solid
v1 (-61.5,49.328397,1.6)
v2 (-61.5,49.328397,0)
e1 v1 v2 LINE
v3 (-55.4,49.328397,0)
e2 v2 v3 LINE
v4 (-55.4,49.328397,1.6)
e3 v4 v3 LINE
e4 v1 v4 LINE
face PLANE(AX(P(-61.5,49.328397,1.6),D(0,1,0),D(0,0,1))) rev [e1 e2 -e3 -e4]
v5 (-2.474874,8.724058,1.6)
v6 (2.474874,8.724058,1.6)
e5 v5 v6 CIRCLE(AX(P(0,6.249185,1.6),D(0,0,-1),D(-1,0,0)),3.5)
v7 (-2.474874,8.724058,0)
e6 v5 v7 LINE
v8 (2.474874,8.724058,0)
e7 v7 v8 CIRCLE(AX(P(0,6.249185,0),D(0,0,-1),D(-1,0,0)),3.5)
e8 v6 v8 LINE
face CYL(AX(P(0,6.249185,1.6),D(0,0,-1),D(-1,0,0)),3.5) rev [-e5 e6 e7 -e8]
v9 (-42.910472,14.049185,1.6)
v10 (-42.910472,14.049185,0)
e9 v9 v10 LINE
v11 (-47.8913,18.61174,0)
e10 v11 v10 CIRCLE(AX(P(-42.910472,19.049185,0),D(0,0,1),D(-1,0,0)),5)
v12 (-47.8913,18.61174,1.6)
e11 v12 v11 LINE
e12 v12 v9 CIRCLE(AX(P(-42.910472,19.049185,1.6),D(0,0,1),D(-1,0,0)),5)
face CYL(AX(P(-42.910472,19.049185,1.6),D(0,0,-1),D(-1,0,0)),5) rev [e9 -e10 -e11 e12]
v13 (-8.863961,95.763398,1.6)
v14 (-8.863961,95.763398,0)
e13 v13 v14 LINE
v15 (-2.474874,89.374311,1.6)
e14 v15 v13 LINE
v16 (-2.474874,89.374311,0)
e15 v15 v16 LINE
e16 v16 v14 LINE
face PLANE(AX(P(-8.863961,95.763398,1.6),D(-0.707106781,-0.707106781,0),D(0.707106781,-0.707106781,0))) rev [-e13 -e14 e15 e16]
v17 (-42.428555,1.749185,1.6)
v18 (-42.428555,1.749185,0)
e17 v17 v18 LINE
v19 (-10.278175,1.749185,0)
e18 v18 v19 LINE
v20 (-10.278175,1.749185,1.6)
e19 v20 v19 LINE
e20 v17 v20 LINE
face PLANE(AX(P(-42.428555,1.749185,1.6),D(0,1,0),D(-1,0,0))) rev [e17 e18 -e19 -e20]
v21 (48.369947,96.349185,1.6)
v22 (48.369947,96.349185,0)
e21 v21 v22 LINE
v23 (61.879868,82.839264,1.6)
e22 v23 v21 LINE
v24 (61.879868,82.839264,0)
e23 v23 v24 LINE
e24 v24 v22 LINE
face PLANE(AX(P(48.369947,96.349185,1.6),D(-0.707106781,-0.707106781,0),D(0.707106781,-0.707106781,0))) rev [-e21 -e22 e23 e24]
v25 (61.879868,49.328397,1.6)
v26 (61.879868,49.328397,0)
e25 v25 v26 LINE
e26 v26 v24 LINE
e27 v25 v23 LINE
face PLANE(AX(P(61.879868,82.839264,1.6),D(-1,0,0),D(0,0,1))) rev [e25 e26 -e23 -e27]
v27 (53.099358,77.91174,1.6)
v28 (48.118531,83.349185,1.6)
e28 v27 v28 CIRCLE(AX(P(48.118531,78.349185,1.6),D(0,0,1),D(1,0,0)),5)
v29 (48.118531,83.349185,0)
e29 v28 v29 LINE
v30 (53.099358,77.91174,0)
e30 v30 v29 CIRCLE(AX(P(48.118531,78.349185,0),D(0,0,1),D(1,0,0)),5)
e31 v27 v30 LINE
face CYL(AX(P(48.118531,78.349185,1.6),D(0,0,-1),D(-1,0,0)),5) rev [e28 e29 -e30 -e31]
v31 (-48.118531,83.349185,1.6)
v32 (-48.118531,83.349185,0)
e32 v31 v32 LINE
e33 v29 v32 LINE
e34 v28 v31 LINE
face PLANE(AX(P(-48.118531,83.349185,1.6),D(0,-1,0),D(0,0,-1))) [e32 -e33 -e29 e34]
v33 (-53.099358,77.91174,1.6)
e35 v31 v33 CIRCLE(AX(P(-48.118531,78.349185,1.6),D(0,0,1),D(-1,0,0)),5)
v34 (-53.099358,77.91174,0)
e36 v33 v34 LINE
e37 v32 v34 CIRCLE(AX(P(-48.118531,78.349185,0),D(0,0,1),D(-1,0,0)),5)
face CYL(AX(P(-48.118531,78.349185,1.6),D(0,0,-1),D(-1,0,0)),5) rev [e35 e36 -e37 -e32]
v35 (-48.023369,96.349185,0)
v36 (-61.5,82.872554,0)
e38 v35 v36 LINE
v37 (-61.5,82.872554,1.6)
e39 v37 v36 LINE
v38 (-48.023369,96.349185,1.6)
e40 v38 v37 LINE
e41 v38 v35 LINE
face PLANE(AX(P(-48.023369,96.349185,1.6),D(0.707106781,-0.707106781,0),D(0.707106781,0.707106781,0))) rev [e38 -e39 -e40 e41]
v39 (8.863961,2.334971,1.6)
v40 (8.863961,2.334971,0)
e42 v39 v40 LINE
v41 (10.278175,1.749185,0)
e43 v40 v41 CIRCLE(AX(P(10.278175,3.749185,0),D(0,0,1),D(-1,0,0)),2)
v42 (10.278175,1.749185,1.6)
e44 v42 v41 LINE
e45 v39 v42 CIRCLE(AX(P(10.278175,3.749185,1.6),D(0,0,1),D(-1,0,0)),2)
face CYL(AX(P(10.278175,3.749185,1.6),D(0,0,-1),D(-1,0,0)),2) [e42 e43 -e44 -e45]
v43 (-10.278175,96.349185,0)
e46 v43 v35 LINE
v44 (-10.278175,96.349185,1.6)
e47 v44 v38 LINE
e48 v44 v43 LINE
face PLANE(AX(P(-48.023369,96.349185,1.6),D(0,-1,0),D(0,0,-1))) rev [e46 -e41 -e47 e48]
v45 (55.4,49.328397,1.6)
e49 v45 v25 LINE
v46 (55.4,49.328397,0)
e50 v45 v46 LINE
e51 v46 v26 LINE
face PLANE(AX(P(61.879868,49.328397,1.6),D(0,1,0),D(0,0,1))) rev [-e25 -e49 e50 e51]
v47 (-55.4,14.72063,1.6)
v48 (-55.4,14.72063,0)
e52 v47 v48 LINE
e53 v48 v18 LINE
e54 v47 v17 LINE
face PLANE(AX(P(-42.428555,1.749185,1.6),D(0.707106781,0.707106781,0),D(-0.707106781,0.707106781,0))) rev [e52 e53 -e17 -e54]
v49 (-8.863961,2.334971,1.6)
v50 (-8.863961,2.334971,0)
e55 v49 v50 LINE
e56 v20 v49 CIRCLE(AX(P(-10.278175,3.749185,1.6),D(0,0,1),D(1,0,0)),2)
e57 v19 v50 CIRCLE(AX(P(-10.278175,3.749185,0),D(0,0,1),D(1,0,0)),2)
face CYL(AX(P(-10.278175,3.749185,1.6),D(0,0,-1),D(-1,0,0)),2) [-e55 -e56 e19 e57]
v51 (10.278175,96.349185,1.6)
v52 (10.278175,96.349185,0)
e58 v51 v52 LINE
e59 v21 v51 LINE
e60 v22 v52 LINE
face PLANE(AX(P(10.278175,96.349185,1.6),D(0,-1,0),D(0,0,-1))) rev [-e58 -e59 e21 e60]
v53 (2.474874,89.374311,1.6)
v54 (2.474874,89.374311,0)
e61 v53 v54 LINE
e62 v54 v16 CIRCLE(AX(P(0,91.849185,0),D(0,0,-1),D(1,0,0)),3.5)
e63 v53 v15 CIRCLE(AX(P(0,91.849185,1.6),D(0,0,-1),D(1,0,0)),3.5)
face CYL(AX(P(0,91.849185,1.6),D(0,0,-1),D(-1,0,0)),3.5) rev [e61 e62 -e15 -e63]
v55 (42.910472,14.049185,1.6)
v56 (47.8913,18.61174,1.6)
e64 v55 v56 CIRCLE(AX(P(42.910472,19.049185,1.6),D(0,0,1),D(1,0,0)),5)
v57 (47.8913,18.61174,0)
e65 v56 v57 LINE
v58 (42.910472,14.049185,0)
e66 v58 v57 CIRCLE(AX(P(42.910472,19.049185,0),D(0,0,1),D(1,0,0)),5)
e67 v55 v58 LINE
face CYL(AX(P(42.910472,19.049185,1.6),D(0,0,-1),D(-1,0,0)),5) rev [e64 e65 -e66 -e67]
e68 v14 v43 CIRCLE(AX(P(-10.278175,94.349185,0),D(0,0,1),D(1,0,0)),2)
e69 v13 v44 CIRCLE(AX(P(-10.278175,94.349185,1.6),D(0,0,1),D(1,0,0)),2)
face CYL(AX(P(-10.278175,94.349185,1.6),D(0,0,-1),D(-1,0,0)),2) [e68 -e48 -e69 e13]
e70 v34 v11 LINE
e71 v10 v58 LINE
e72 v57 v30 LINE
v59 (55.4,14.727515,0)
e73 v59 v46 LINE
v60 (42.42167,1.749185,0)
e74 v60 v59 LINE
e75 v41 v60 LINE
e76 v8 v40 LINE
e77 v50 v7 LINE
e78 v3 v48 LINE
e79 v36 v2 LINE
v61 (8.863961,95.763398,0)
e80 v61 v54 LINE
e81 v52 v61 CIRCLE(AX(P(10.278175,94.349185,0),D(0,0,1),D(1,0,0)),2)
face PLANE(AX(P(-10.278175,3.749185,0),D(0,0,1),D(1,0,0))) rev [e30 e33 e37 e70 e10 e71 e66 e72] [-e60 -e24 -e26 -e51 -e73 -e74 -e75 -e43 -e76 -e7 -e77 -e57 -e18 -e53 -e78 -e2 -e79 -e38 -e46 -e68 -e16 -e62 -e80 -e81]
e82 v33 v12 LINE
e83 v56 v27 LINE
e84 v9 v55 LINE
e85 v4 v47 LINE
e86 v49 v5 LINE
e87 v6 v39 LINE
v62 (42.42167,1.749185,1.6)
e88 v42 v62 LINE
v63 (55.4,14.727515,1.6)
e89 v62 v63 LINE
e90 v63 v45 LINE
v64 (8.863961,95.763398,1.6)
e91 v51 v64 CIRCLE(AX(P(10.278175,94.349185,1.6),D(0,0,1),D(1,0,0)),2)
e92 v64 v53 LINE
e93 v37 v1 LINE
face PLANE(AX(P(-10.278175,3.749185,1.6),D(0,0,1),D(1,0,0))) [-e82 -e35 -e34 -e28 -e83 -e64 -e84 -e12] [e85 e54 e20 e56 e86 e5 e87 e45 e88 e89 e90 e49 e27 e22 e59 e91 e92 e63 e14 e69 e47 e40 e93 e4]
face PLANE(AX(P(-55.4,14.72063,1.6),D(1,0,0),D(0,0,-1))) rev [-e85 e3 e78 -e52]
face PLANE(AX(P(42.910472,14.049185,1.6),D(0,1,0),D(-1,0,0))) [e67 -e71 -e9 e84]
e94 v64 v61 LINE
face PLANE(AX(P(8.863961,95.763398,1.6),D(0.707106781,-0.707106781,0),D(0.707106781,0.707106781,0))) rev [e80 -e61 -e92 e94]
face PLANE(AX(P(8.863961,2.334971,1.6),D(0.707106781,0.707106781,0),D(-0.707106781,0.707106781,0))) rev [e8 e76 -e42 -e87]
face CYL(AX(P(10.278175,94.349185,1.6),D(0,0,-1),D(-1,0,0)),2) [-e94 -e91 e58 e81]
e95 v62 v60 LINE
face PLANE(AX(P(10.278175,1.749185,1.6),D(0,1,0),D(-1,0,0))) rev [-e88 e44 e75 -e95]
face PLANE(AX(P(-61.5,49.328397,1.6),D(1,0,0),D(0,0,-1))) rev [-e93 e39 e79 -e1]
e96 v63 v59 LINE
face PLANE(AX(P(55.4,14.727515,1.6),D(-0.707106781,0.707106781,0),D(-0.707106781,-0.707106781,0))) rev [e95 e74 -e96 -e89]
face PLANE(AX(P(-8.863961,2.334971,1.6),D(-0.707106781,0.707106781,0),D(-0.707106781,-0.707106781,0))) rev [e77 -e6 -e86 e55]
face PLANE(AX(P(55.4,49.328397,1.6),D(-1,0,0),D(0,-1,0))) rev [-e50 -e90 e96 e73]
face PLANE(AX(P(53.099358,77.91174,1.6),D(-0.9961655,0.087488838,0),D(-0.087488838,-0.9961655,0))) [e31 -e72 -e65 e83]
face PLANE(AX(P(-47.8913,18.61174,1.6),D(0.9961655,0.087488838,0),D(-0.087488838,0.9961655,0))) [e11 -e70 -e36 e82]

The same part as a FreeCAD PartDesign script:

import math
import FreeCAD as App
import Part
import Sketcher
from FreeCAD import Vector
Q = App.Units.Quantity

doc = App.newDocument("Part")
params = doc.addObject("Spreadsheet::Sheet", "Params")
for row, (alias, value) in enumerate([
    ("sketch1_radius", "2 mm"),
    ("sketch1_radius2", "5 mm"),
    ("sketch1_radius3", "3.5 mm"),
    ("sketch1_width", "6.1 mm"),
    ("pad1_length", "1.6 mm"),
], start=1):
    params.set(f"A{row}", alias)
    params.set(f"B{row}", "=" + value)
    params.setAlias(f"B{row}", alias)

body = doc.addObject("PartDesign::Body", "Body")

sketch1 = body.newObject("Sketcher::SketchObject", "Sketch")
sketch1.AttachmentSupport = (doc.getObject("XY_Plane"), [""])
sketch1.MapMode = "FlatFace"
sketch1.addGeometry([
    Part.LineSegment(Vector(-10.3, 96.3, 0), Vector(-48, 96.3, 0)),
    Part.LineSegment(Vector(-48, 96.3, 0), Vector(-61.5, 82.9, 0)),
    Part.LineSegment(Vector(-61.5, 82.9, 0), Vector(-61.5, 49.3, 0)),
    Part.LineSegment(Vector(-61.5, 49.3, 0), Vector(-55.4, 49.3, 0)),
    Part.LineSegment(Vector(-55.4, 49.3, 0), Vector(-55.4, 14.7, 0)),
    Part.LineSegment(Vector(-55.4, 14.7, 0), Vector(-42.4, 1.7, 0)),
    Part.LineSegment(Vector(-42.4, 1.7, 0), Vector(-10.3, 1.7, 0)),
    Part.ArcOfCircle(Part.Circle(Vector(-10.3, 3.7, 0), Vector(0, 0, 1), 2), math.radians(-90), math.radians(-45)),
    Part.LineSegment(Vector(-8.9, 2.3, 0), Vector(-2.5, 8.7, 0)),
    Part.ArcOfCircle(Part.Circle(Vector(0, 6.2, 0), Vector(0, 0, 1), 3.5), math.radians(45), math.radians(135)),
    Part.LineSegment(Vector(2.5, 8.7, 0), Vector(8.9, 2.3, 0)),
    Part.ArcOfCircle(Part.Circle(Vector(10.3, 3.7, 0), Vector(0, 0, 1), 2), math.radians(-135), math.radians(-90)),
    Part.LineSegment(Vector(10.3, 1.7, 0), Vector(42.4, 1.7, 0)),
    Part.LineSegment(Vector(42.4, 1.7, 0), Vector(55.4, 14.7, 0)),
    Part.LineSegment(Vector(55.4, 14.7, 0), Vector(55.4, 49.3, 0)),
    Part.LineSegment(Vector(55.4, 49.3, 0), Vector(61.9, 49.3, 0)),
    Part.LineSegment(Vector(61.9, 49.3, 0), Vector(61.9, 82.8, 0)),
    Part.LineSegment(Vector(61.9, 82.8, 0), Vector(48.4, 96.3, 0)),
    Part.LineSegment(Vector(48.4, 96.3, 0), Vector(10.3, 96.3, 0)),
    Part.ArcOfCircle(Part.Circle(Vector(10.3, 94.3, 0), Vector(0, 0, 1), 2), math.radians(90), math.radians(135)),
    Part.LineSegment(Vector(8.9, 95.8, 0), Vector(2.5, 89.4, 0)),
    Part.ArcOfCircle(Part.Circle(Vector(0, 91.8, 0), Vector(0, 0, 1), 3.5), math.radians(-135), math.radians(-45)),
    Part.LineSegment(Vector(-2.5, 89.4, 0), Vector(-8.9, 95.8, 0)),
    Part.ArcOfCircle(Part.Circle(Vector(-10.3, 94.3, 0), Vector(0, 0, 1), 2), math.radians(45), math.radians(90)),
    Part.LineSegment(Vector(-48.1, 83.3, 0), Vector(48.1, 83.3, 0)),
    Part.ArcOfCircle(Part.Circle(Vector(48.1, 78.3, 0), Vector(0, 0, 1), 5), math.radians(-5), math.radians(90)),
    Part.LineSegment(Vector(53.1, 77.9, 0), Vector(47.9, 18.6, 0)),
    Part.ArcOfCircle(Part.Circle(Vector(42.9, 19, 0), Vector(0, 0, 1), 5), math.radians(-90), math.radians(-5)),
    Part.LineSegment(Vector(42.9, 14, 0), Vector(-42.9, 14, 0)),
    Part.ArcOfCircle(Part.Circle(Vector(-42.9, 19, 0), Vector(0, 0, 1), 5), math.radians(-175), math.radians(-90)),
    Part.LineSegment(Vector(-47.9, 18.6, 0), Vector(-53.1, 77.9, 0)),
    Part.ArcOfCircle(Part.Circle(Vector(-48.1, 78.3, 0), Vector(0, 0, 1), 5), math.radians(90), math.radians(185)),
], False)
sketch1.addConstraint([
    Sketcher.Constraint("Coincident", 0, 2, 1, 1),
    Sketcher.Constraint("Coincident", 1, 2, 2, 1),
    Sketcher.Constraint("Coincident", 2, 2, 3, 1),
    Sketcher.Constraint("Coincident", 3, 2, 4, 1),
    Sketcher.Constraint("Coincident", 4, 2, 5, 1),
    Sketcher.Constraint("Coincident", 5, 2, 6, 1),
    Sketcher.Constraint("Tangent", 6, 2, 7, 1),
    Sketcher.Constraint("Tangent", 7, 2, 8, 1),
    Sketcher.Constraint("Tangent", 8, 2, 9, 2),
    Sketcher.Constraint("Tangent", 9, 1, 10, 1),
    Sketcher.Constraint("Tangent", 10, 2, 11, 1),
    Sketcher.Constraint("Tangent", 11, 2, 12, 1),
    Sketcher.Constraint("Coincident", 12, 2, 13, 1),
    Sketcher.Constraint("Coincident", 13, 2, 14, 1),
    Sketcher.Constraint("Coincident", 14, 2, 15, 1),
    Sketcher.Constraint("Coincident", 15, 2, 16, 1),
    Sketcher.Constraint("Coincident", 16, 2, 17, 1),
    Sketcher.Constraint("Coincident", 17, 2, 18, 1),
    Sketcher.Constraint("Tangent", 18, 2, 19, 1),
    Sketcher.Constraint("Tangent", 19, 2, 20, 1),
    Sketcher.Constraint("Tangent", 20, 2, 21, 2),
    Sketcher.Constraint("Tangent", 21, 1, 22, 1),
    Sketcher.Constraint("Tangent", 22, 2, 23, 1),
    Sketcher.Constraint("Tangent", 23, 2, 0, 1),
    Sketcher.Constraint("Tangent", 24, 2, 25, 2),
    Sketcher.Constraint("Tangent", 25, 1, 26, 1),
    Sketcher.Constraint("Tangent", 26, 2, 27, 2),
    Sketcher.Constraint("Tangent", 27, 1, 28, 1),
    Sketcher.Constraint("Tangent", 28, 2, 29, 2),
    Sketcher.Constraint("Tangent", 29, 1, 30, 1),
    Sketcher.Constraint("Tangent", 30, 2, 31, 2),
    Sketcher.Constraint("Tangent", 31, 1, 24, 1),
    Sketcher.Constraint("Horizontal", 0),
    Sketcher.Constraint("Vertical", 2),
    Sketcher.Constraint("Horizontal", 3),
    Sketcher.Constraint("Vertical", 4),
    Sketcher.Constraint("Horizontal", 6),
    Sketcher.Constraint("Horizontal", 12),
    Sketcher.Constraint("Vertical", 14),
    Sketcher.Constraint("Horizontal", 15),
    Sketcher.Constraint("Vertical", 16),
    Sketcher.Constraint("Horizontal", 18),
    Sketcher.Constraint("Horizontal", 24),
    Sketcher.Constraint("Horizontal", 28),
    Sketcher.Constraint("Equal", 7, 11),
    Sketcher.Constraint("Equal", 11, 19),
    Sketcher.Constraint("Equal", 9, 21),
    Sketcher.Constraint("Equal", 19, 23),
    Sketcher.Constraint("Equal", 25, 27),
    Sketcher.Constraint("Equal", 27, 29),
    Sketcher.Constraint("Equal", 29, 31),
    Sketcher.Constraint("Symmetric", 7, 3, 11, 3, -2),
    Sketcher.Constraint("Symmetric", 19, 3, 23, 3, -2),
    Sketcher.Constraint("Symmetric", 3, 2, 14, 2, -2),
    Sketcher.Constraint("Symmetric", 26, 2, 29, 1, -2),
    Sketcher.Constraint("PointOnObject", 9, 3, -2),
    Sketcher.Constraint("PointOnObject", 21, 3, -2),
    Sketcher.Constraint("Perpendicular", 1, 5),
    Sketcher.Constraint("Perpendicular", 5, 8),
    Sketcher.Constraint("Perpendicular", 8, 10),
    Sketcher.Constraint("Perpendicular", 10, 13),
    Sketcher.Constraint("Perpendicular", 13, 17),
    Sketcher.Constraint("Perpendicular", 17, 20),
    Sketcher.Constraint("Vertical", 11, 3, 19, 3),
    Sketcher.Constraint("Radius", 7, Q("2 mm")),
    Sketcher.Constraint("Radius", 25, Q("5 mm")),
    Sketcher.Constraint("Radius", 9, Q("3.5 mm")),
    Sketcher.Constraint("DistanceX", 3, 1, 3, 2, Q("6.1 mm")),
    Sketcher.Constraint("DistanceY", 25, 3, 19, 3, Q("16 mm")),
    Sketcher.Constraint("DistanceX", 1, 2, -1, 1, Q("61.5 mm")),
    Sketcher.Constraint("DistanceY", 7, 3, 9, 3, Q("2.5 mm")),
    Sketcher.Constraint("DistanceY", 9, 3, 19, 3, Q("88.1 mm")),
    Sketcher.Constraint("DistanceY", 11, 3, 27, 3, Q("15.3 mm")),
    Sketcher.Constraint("DistanceX", 6, 1, 6, 2, Q("32.15038 mm")),
    Sketcher.Constraint("DistanceX", 24, 1, 24, 2, Q("96.237061 mm")),
    Sketcher.Constraint("DistanceY", 14, 1, 14, 2, Q("34.600882 mm")),
    Sketcher.Constraint("DistanceY", -1, 1, 19, 2, Q("95.763398 mm")),
    Sketcher.Constraint("DistanceX", -1, 1, 26, 2, Q("47.8913 mm")),
    Sketcher.Constraint("Distance", 13, Q("18.354131 mm")),
    Sketcher.Constraint("DistanceX", 0, 2, 0, 1, Q("37.745195 mm")),
    Sketcher.Constraint("DistanceX", 15, 1, 15, 2, Q("6.479868 mm")),
    Sketcher.Constraint("DistanceX", 18, 2, 18, 1, Q("38.091773 mm")),
])
sketch1.setExpression("Constraints[64]", "Params.sketch1_radius")
sketch1.setExpression("Constraints[65]", "Params.sketch1_radius2")
sketch1.setExpression("Constraints[66]", "Params.sketch1_radius3")
sketch1.setExpression("Constraints[67]", "Params.sketch1_width")
pad1 = body.newObject("PartDesign::Pad", "Pad")
pad1.Profile = sketch1
pad1.setExpression("Length", "Params.pad1_length")

doc.recompute()
